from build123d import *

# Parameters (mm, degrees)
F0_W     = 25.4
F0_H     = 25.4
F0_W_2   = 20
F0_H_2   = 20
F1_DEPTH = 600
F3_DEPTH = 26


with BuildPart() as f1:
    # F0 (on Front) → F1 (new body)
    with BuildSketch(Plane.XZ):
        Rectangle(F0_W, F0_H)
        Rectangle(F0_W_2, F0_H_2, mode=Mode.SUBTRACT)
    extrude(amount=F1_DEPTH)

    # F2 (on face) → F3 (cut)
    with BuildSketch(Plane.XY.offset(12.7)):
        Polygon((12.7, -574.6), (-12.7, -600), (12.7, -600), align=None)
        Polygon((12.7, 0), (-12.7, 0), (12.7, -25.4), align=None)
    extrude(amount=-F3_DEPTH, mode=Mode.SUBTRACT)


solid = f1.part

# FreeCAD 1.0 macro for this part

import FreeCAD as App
import Part
import Sketcher
from FreeCAD import Vector


def add_polygon(sketch, points):
    """Adds a closed chain of lines whose ends are joined by coincident constraints."""
    first, n = sketch.GeometryCount, len(points)
    for a, b in zip(points, points[1:] + points[:1]):
        sketch.addGeometry(Part.LineSegment(App.Vector(*a, 0), App.Vector(*b, 0)), False)
    for i in range(n):
        sketch.addConstraint(Sketcher.Constraint("Coincident", first + i, 2, first + (i + 1) % n, 1))

doc = App.newDocument("Part")
params = doc.addObject("Spreadsheet::Sheet", "Params")
for row, (alias, value) in enumerate([
    ("sketch1_width", "20 mm"),
    ("sketch1_width2", "25.4 mm"),
    ("pad1_length", "600 mm"),
    ("sketch2_width", "25.4 mm"),
    ("pocket1_length", "26 mm"),
], start=1):
    params.set(f"A{row}", alias)
    params.set(f"B{row}", "=" + value)
    params.setAlias(f"B{row}", alias)

body = doc.addObject("PartDesign::Body", "Body")

# Sketch on XZ plane
sketch1 = body.newObject("Sketcher::SketchObject", "Sketch")
sketch1.AttachmentSupport = (doc.getObject("XZ_Plane"), [""])
sketch1.MapMode = "FlatFace"
add_polygon(sketch1, [(-13, 13), (-13, -13), (13, -13), (13, 13)])  # lines 0-3
add_polygon(sketch1, [(10, -10), (-10, -10), (-10, 10), (10, 10)])  # lines 4-7
sketch1.addConstraint([
    Sketcher.Constraint("Vertical", 0),
    Sketcher.Constraint("Horizontal", 1),
    Sketcher.Constraint("Vertical", 2),
    Sketcher.Constraint("Horizontal", 3),
    Sketcher.Constraint("Horizontal", 4),
    Sketcher.Constraint("Vertical", 5),
    Sketcher.Constraint("Horizontal", 6),
    Sketcher.Constraint("Vertical", 7),
    Sketcher.Constraint("Symmetric", 0, 2, 2, 2, -1, 1),
    Sketcher.Constraint("Symmetric", 4, 2, 6, 2, -1, 1),
    Sketcher.Constraint("Equal", 3, 0),
    Sketcher.Constraint("Equal", 6, 5),
    Sketcher.Constraint("DistanceX", 4, 2, 4, 1, 20.0),
    Sketcher.Constraint("DistanceX", 1, 1, 1, 2, 25.4),
])
sketch1.setExpression("Constraints[20]", "Params.sketch1_width")
sketch1.setExpression("Constraints[21]", "Params.sketch1_width2")
pad1 = body.newObject("PartDesign::Pad", "Pad")
pad1.Profile = sketch1
pad1.setExpression("Length", "Params.pad1_length")

# Sketch on XY plane
sketch2 = body.newObject("Sketcher::SketchObject", "Sketch001")
sketch2.AttachmentSupport = (doc.getObject("XY_Plane"), [""])
sketch2.MapMode = "FlatFace"
sketch2.AttachmentOffset = App.Placement(Vector(0, 0, 12.7), App.Rotation())
add_polygon(sketch2, [(13, -575), (-13, -600), (13, -600)])  # lines 0-2
add_polygon(sketch2, [(13, 0), (-13, 0), (13, -25)])  # lines 3-5
sketch2.addConstraint([
    Sketcher.Constraint("Horizontal", 1),
    Sketcher.Constraint("Vertical", 2),
    Sketcher.Constraint("Horizontal", 3),
    Sketcher.Constraint("Vertical", 5),
    Sketcher.Constraint("Symmetric", 3, 2, 5, 2, -1, 1),
    Sketcher.Constraint("Perpendicular", 0, 4),
    Sketcher.Constraint("Vertical", 0, 2, 3, 2),
    Sketcher.Constraint("Vertical", 2, 2, 4, 2),
    Sketcher.Constraint("Equal", 3, 2),
    Sketcher.Constraint("DistanceX", 1, 1, 1, 2, 25.4),
    Sketcher.Constraint("DistanceY", 0, 2, -1, 1, 600.0),
])
sketch2.setExpression("Constraints[15]", "Params.sketch2_width")
pocket1 = body.newObject("PartDesign::Pocket", "Pocket")
pocket1.Profile = sketch2
pocket1.setExpression("Length", "Params.pocket1_length")

doc.recompute()
